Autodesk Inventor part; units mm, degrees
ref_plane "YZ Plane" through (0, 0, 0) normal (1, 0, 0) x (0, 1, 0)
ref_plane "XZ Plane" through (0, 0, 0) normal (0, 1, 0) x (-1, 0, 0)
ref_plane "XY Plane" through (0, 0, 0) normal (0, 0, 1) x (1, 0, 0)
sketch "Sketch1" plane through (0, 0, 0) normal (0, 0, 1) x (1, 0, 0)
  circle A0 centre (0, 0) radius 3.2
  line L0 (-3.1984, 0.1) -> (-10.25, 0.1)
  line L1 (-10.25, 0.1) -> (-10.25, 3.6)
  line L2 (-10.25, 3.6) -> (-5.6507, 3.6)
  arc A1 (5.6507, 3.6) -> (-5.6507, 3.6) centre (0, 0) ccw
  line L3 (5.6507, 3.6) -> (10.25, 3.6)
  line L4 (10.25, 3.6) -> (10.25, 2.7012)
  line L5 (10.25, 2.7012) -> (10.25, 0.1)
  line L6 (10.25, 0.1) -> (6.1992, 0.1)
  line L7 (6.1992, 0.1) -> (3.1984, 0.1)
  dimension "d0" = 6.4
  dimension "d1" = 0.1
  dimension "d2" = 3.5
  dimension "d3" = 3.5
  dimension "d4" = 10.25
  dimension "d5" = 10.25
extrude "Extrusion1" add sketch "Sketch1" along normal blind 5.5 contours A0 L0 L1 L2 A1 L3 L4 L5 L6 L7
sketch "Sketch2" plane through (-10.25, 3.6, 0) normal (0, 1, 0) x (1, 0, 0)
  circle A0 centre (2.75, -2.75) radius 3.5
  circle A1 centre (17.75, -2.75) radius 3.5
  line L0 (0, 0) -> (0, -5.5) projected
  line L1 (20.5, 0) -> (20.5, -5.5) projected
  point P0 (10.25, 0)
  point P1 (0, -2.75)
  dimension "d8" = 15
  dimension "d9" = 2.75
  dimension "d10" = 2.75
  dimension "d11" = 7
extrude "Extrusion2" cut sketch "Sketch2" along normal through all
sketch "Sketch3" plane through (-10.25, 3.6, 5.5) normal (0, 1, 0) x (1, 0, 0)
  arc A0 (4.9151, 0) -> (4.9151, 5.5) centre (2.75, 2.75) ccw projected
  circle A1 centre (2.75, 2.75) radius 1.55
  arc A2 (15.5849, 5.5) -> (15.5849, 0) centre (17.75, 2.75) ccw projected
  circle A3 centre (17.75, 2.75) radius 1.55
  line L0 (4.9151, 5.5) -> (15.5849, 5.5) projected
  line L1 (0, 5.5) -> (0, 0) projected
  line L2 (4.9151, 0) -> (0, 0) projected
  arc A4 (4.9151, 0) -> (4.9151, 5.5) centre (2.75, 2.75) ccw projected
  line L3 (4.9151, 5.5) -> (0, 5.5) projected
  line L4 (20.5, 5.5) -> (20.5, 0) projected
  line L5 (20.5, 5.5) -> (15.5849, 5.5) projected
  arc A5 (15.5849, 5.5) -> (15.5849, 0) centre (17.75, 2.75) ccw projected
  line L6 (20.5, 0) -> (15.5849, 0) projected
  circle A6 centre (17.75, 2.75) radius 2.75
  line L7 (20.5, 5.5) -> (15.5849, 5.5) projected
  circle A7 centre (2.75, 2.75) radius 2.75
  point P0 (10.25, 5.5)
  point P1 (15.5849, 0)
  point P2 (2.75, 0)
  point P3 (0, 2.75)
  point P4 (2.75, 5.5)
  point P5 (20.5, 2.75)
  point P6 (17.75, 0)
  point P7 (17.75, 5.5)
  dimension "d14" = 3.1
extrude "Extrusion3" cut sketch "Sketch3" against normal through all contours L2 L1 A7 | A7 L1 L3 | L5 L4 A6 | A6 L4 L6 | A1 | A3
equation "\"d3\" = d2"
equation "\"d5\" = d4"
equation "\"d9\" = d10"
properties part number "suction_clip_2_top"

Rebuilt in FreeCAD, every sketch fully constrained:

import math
import FreeCAD as App
import Part
import Sketcher
Q = App.Units.Quantity

doc = App.newDocument("Part")
body = doc.addObject("PartDesign::Body", "Body")

sketch1 = doc.addObject("Sketcher::SketchObject", "Sketch")
body.addObject(sketch1)
sketch1.AttachmentSupport = (doc.XY_Plane, [""])
sketch1.MapMode = "FlatFace"
sketch1.addGeometry([
    Part.ArcOfCircle(Part.Circle(App.Vector(0, 0, 0), App.Vector(0, 0, 1), 3.2), math.radians(2), math.radians(178)),
    Part.LineSegment(App.Vector(3.2, 0.1, 0), App.Vector(10.2, 0.1, 0)),
    Part.LineSegment(App.Vector(10.2, 0.1, 0), App.Vector(10.2, 3.6, 0)),
    Part.LineSegment(App.Vector(10.2, 3.6, 0), App.Vector(5.7, 3.6, 0)),
    Part.ArcOfCircle(Part.Circle(App.Vector(0, 0, 0), App.Vector(0, 0, 1), 6.7), math.radians(33), math.radians(147)),
    Part.LineSegment(App.Vector(-5.7, 3.6, 0), App.Vector(-10.2, 3.6, 0)),
    Part.LineSegment(App.Vector(-10.2, 3.6, 0), App.Vector(-10.2, 0.1, 0)),
    Part.LineSegment(App.Vector(-10.2, 0.1, 0), App.Vector(-3.2, 0.1, 0)),
], False)
sketch1.addConstraint([
    Sketcher.Constraint("Coincident", 0, 1, 1, 1),
    Sketcher.Constraint("Coincident", 1, 2, 2, 1),
    Sketcher.Constraint("Coincident", 2, 2, 3, 1),
    Sketcher.Constraint("Coincident", 3, 2, 4, 1),
    Sketcher.Constraint("Coincident", 4, 2, 5, 1),
    Sketcher.Constraint("Coincident", 5, 2, 6, 1),
    Sketcher.Constraint("Coincident", 6, 2, 7, 1),
    Sketcher.Constraint("Coincident", 7, 2, 0, 2),
    Sketcher.Constraint("Horizontal", 1),
    Sketcher.Constraint("Vertical", 2),
    Sketcher.Constraint("Horizontal", 3),
    Sketcher.Constraint("Horizontal", 5),
    Sketcher.Constraint("Vertical", 6),
    Sketcher.Constraint("Horizontal", 7),
    Sketcher.Constraint("Coincident", 0, 3, -1, 1),
    Sketcher.Constraint("Coincident", 4, 3, -1, 1),
    Sketcher.Constraint("Symmetric", 2, 2, 5, 2, -2),
    Sketcher.Constraint("Horizontal", 1, 2, 6, 2),
    Sketcher.Constraint("Radius", 0, Q("3.2 mm")),
    Sketcher.Constraint("DistanceY", 2, 1, 2, 2, Q("3.5 mm")),
    Sketcher.Constraint("DistanceY", -1, 1, 0, 1, Q("0.1 mm")),
    Sketcher.Constraint("Radius", 4, Q("6.7 mm")),
    Sketcher.Constraint("DistanceX", -1, 1, 1, 2, Q("10.25 mm")),
])
pad1 = doc.addObject("PartDesign::Pad", "Pad")
body.addObject(pad1)
pad1.Profile = sketch1
pad1.Length = 5.5

sketch2 = doc.addObject("Sketcher::SketchObject", "Sketch001")
body.addObject(sketch2)
sketch2.AttachmentSupport = (doc.XZ_Plane, [""])
sketch2.MapMode = "FlatFace"
sketch2.AttachmentOffset = App.Placement(App.Vector(0, 0, -3.6), App.Rotation())
sketch2.addGeometry([
    Part.Circle(App.Vector(-7.5, 2.8, 0), App.Vector(0, 0, 1), 3.5),
    Part.Circle(App.Vector(7.5, 2.8, 0), App.Vector(0, 0, 1), 3.5),
], False)
sketch2.addConstraint([
    Sketcher.Constraint("Equal", 0, 1),
    Sketcher.Constraint("Symmetric", 0, 3, 1, 3, -2),
    Sketcher.Constraint("Diameter", 0, Q("7 mm")),
    Sketcher.Constraint("DistanceX", 0, 3, 1, 3, Q("15 mm")),
    Sketcher.Constraint("DistanceY", -1, 1, 0, 3, Q("2.75 mm")),
])
pocket1 = doc.addObject("PartDesign::Pocket", "Pocket")
body.addObject(pocket1)
pocket1.Profile = sketch2
pocket1.Type = "ThroughAll"

sketch3 = doc.addObject("Sketcher::SketchObject", "Sketch002")
body.addObject(sketch3)
sketch3.AttachmentSupport = (doc.XZ_Plane, [""])
sketch3.MapMode = "FlatFace"
sketch3.AttachmentOffset = App.Placement(App.Vector(0, 0, -3.6), App.Rotation())
sketch3.addGeometry([
    Part.LineSegment(App.Vector(-10.2, 5.5, 0), App.Vector(-7.5, 5.5, 0)),
    Part.ArcOfCircle(Part.Circle(App.Vector(-7.5, 2.8, 0), App.Vector(0, 0, 1), 2.8), math.radians(90), math.radians(180)),
    Part.LineSegment(App.Vector(-10.2, 2.8, 0), App.Vector(-10.2, 5.5, 0)),
    Part.ArcOfCircle(Part.Circle(App.Vector(-7.5, 2.8, 0), App.Vector(0, 0, 1), 2.8), math.radians(180), math.radians(270)),
    Part.LineSegment(App.Vector(-7.5, 0, 0), App.Vector(-10.2, 0, 0)),
    Part.LineSegment(App.Vector(-10.2, 0, 0), App.Vector(-10.2, 2.8, 0)),
    Part.LineSegment(App.Vector(10.2, 0, 0), App.Vector(7.5, 0, 0)),
    Part.ArcOfCircle(Part.Circle(App.Vector(7.5, 2.8, 0), App.Vector(0, 0, 1), 2.8), math.radians(-90), math.radians(0)),
    Part.LineSegment(App.Vector(10.2, 2.8, 0), App.Vector(10.2, 0, 0)),
    Part.ArcOfCircle(Part.Circle(App.Vector(7.5, 2.8, 0), App.Vector(0, 0, 1), 2.8), math.radians(0), math.radians(90)),
    Part.LineSegment(App.Vector(7.5, 5.5, 0), App.Vector(10.2, 5.5, 0)),
    Part.LineSegment(App.Vector(10.2, 5.5, 0), App.Vector(10.2, 2.8, 0)),
    Part.Circle(App.Vector(-7.5, 2.8, 0), App.Vector(0, 0, 1), 1.6),
    Part.Circle(App.Vector(7.5, 2.8, 0), App.Vector(0, 0, 1), 1.6),
], False)
sketch3.addConstraint([
    Sketcher.Constraint("Tangent", 0, 2, 1, 1),
    Sketcher.Constraint("Tangent", 1, 2, 2, 1),
    Sketcher.Constraint("Coincident", 2, 2, 0, 1),
    Sketcher.Constraint("Tangent", 3, 2, 4, 1),
    Sketcher.Constraint("Coincident", 4, 2, 5, 1),
    Sketcher.Constraint("Tangent", 5, 2, 3, 1),
    Sketcher.Constraint("Tangent", 6, 2, 7, 1),
    Sketcher.Constraint("Tangent", 7, 2, 8, 1),
    Sketcher.Constraint("Coincident", 8, 2, 6, 1),
    Sketcher.Constraint("Tangent", 9, 2, 10, 1),
    Sketcher.Constraint("Coincident", 10, 2, 11, 1),
    Sketcher.Constraint("Tangent", 11, 2, 9, 1),
    Sketcher.Constraint("Horizontal", 0),
    Sketcher.Constraint("Vertical", 2),
    Sketcher.Constraint("Horizontal", 4),
    Sketcher.Constraint("Vertical", 5),
    Sketcher.Constraint("Horizontal", 6),
    Sketcher.Constraint("Vertical", 8),
    Sketcher.Constraint("Horizontal", 10),
    Sketcher.Constraint("Vertical", 11),
    Sketcher.Constraint("Coincident", 3, 3, 1, 3),
    Sketcher.Constraint("Coincident", 9, 3, 7, 3),
    Sketcher.Constraint("Coincident", 12, 3, 1, 3),
    Sketcher.Constraint("Coincident", 13, 3, 7, 3),
    Sketcher.Constraint("Equal", 1, 3),
    Sketcher.Constraint("Equal", 3, 7),
    Sketcher.Constraint("Equal", 7, 9),
    Sketcher.Constraint("Equal", 12, 13),
    Sketcher.Constraint("Symmetric", 3, 2, 6, 2, -1, 1),
    Sketcher.Constraint("PointOnObject", 3, 2, -1),
    Sketcher.Constraint("Diameter", 12, Q("3.1 mm")),
    Sketcher.Constraint("Radius", 1, Q("2.75 mm")),
    Sketcher.Constraint("DistanceX", 1, 3, 7, 3, Q("15 mm")),
])
pocket2 = doc.addObject("PartDesign::Pocket", "Pocket001")
body.addObject(pocket2)
pocket2.Profile = sketch3
pocket2.Type = "ThroughAll"
pocket2.Reversed = True

doc.recompute()
